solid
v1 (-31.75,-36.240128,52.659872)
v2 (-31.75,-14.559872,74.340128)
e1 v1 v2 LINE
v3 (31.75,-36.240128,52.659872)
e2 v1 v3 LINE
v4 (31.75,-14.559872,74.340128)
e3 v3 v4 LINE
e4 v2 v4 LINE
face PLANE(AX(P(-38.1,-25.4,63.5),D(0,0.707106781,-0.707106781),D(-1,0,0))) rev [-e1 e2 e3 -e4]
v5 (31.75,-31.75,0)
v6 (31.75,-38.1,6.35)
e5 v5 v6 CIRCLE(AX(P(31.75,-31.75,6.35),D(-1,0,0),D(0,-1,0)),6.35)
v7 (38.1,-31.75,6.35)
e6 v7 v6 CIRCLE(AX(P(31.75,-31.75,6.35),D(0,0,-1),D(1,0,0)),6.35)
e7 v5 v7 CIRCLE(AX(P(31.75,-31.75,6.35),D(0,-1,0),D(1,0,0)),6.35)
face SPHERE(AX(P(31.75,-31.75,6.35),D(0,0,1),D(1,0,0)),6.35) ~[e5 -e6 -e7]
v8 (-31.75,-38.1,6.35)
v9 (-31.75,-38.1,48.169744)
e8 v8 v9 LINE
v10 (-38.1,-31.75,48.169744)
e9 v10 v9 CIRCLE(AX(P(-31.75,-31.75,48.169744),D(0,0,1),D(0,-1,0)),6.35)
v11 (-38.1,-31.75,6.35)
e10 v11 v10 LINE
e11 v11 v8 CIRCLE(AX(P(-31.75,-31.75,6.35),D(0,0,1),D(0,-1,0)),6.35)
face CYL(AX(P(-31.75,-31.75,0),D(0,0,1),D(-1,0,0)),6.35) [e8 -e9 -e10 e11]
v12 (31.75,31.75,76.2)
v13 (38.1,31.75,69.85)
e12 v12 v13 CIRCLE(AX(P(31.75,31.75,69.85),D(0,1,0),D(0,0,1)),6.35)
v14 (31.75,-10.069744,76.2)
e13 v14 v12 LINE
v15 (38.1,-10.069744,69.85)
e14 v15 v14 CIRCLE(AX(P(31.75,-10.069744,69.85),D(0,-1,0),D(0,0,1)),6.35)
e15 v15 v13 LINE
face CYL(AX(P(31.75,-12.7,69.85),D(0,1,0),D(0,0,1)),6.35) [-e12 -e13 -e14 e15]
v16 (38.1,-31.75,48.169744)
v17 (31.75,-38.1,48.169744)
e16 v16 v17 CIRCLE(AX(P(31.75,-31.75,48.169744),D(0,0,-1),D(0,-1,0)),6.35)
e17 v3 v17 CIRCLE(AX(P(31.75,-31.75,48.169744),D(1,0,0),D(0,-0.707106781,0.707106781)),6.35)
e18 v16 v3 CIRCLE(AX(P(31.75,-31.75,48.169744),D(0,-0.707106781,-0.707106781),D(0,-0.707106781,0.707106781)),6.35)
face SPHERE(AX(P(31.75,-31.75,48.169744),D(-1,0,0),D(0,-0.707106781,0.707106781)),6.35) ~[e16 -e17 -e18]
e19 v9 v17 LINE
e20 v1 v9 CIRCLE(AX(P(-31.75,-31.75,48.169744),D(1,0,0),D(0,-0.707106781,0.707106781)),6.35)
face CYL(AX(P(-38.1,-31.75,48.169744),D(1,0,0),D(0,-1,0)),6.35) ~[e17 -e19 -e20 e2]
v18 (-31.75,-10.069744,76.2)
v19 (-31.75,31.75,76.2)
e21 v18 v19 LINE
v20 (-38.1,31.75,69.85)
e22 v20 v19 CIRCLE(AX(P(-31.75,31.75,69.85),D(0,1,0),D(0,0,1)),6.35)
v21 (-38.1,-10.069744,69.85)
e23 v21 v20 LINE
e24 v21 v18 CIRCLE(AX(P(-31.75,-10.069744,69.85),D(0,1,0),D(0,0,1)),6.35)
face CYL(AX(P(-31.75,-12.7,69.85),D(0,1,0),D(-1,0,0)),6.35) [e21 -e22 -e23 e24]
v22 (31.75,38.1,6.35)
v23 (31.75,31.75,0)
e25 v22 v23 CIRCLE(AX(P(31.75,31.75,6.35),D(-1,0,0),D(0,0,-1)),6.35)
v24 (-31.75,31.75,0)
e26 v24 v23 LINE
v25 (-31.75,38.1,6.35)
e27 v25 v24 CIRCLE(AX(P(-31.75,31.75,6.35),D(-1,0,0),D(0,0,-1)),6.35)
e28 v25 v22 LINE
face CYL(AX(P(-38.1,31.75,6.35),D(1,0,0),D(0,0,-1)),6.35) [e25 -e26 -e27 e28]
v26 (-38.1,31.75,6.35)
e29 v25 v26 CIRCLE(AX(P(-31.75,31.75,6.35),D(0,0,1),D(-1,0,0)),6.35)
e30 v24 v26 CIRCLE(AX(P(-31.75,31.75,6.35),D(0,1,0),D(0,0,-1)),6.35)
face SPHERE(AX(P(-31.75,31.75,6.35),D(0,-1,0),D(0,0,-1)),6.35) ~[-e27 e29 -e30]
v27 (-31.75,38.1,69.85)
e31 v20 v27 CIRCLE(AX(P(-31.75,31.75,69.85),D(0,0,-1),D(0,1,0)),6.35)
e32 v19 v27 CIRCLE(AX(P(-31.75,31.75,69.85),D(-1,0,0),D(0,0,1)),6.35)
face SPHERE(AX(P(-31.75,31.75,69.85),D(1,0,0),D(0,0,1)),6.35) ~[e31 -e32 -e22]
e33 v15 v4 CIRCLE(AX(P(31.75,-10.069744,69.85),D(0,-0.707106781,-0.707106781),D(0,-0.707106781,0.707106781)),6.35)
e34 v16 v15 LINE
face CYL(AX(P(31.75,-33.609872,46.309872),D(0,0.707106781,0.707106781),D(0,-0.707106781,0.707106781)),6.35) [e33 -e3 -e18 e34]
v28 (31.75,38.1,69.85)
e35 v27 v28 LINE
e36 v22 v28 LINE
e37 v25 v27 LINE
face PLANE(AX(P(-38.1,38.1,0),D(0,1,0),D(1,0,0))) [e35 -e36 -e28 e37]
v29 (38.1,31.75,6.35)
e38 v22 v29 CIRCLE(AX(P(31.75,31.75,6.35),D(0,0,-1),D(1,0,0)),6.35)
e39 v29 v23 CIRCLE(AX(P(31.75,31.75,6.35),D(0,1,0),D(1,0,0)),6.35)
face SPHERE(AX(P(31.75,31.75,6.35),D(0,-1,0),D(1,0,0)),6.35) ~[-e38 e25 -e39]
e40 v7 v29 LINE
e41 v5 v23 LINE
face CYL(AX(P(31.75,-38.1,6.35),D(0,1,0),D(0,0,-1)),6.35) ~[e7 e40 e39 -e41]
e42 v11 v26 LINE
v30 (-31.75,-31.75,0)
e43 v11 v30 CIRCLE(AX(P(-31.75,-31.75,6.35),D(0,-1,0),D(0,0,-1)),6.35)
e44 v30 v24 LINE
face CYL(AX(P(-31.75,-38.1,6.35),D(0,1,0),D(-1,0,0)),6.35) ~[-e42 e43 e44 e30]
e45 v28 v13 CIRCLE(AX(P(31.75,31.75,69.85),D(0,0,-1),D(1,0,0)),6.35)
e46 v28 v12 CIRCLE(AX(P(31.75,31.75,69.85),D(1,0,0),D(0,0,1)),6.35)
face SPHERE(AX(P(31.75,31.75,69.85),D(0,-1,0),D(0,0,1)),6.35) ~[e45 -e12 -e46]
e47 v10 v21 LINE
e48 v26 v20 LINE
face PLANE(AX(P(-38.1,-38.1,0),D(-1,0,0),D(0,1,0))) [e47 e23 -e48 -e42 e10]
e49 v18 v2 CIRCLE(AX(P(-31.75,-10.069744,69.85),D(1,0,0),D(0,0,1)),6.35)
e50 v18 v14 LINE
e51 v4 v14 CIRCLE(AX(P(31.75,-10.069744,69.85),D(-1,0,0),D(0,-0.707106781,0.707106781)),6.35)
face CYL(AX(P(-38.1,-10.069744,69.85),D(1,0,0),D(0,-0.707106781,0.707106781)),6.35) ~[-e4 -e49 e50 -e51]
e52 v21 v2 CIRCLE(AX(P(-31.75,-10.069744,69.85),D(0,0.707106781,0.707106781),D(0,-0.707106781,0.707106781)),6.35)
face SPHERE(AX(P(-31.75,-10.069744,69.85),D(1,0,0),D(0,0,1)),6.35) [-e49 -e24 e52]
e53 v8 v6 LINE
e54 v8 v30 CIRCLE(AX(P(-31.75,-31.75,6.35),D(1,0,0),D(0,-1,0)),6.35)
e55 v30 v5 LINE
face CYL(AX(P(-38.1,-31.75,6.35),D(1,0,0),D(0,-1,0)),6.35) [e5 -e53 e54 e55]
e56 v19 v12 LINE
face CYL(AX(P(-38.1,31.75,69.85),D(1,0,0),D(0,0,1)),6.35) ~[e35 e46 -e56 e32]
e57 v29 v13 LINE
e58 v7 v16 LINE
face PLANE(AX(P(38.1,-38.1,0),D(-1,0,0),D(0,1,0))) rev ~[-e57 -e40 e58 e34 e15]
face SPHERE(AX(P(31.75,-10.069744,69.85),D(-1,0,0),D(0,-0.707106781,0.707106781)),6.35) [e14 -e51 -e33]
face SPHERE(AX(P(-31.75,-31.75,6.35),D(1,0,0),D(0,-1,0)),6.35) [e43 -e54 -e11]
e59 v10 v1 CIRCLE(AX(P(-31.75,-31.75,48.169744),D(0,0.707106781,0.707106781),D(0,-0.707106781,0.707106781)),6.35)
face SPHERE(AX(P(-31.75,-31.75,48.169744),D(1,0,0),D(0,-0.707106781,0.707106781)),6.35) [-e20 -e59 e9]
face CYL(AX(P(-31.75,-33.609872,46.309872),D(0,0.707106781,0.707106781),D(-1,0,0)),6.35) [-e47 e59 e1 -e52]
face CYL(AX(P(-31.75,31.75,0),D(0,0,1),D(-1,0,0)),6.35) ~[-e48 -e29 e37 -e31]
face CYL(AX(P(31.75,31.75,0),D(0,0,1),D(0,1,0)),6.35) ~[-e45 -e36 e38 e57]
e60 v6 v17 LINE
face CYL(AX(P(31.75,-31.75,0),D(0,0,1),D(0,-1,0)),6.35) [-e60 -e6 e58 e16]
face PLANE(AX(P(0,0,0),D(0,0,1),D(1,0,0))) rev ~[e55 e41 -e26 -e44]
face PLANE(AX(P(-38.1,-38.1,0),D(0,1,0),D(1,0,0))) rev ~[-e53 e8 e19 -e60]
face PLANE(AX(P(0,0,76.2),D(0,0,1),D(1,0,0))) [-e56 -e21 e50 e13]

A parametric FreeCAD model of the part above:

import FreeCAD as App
import Part
import Sketcher
Q = App.Units.Quantity


def edges_at(feature, points):
    """Names of the edges that pass closest to the given points."""
    edges = feature.Shape.Edges
    near = lambda p: min(range(len(edges)), key=lambda i: edges[i].distToShape(Part.Vertex(*p))[0])
    return sorted({f"Edge{near(p) + 1}" for p in points})

doc = App.newDocument("Part")
body = doc.addObject("PartDesign::Body", "Body")

sketch1 = body.newObject("Sketcher::SketchObject", "Sketch")
sketch1.AttachmentSupport = (doc.getObject("XY_Plane"), [""])
sketch1.MapMode = "FlatFace"
sketch1.addGeometry([
    Part.LineSegment(App.Vector(-38, 38, 0), App.Vector(-38, -38, 0)),
    Part.LineSegment(App.Vector(-38, -38, 0), App.Vector(38, -38, 0)),
    Part.LineSegment(App.Vector(38, -38, 0), App.Vector(38, 38, 0)),
    Part.LineSegment(App.Vector(38, 38, 0), App.Vector(-38, 38, 0)),
], False)
sketch1.addConstraint([
    Sketcher.Constraint("Coincident", 0, 2, 1, 1),
    Sketcher.Constraint("Coincident", 1, 2, 2, 1),
    Sketcher.Constraint("Coincident", 2, 2, 3, 1),
    Sketcher.Constraint("Coincident", 3, 2, 0, 1),
    Sketcher.Constraint("Vertical", 0),
    Sketcher.Constraint("Horizontal", 1),
    Sketcher.Constraint("Vertical", 2),
    Sketcher.Constraint("Horizontal", 3),
    Sketcher.Constraint("Symmetric", 0, 2, 2, 2, -1, 1),
    Sketcher.Constraint("Equal", 3, 0),
    Sketcher.Constraint("DistanceX", 1, 1, 1, 2, Q("3 in")),
])
pad1 = body.newObject("PartDesign::Pad", "Pad")
pad1.Profile = sketch1
pad1.Length = Q("3 in")
doc.recompute()

chamfer = body.newObject("PartDesign::Chamfer", "Chamfer")
chamfer.Base = (pad1, edges_at(pad1, [(0, -38.1, 76.2)]))
chamfer.Size = Q("1 in")
doc.recompute()

fillet = body.newObject("PartDesign::Fillet", "Fillet")
fillet.Base = (chamfer, ["Edge1"])
fillet.UseAllEdges = True
fillet.Radius = Q("0.25 in")

doc.recompute()
